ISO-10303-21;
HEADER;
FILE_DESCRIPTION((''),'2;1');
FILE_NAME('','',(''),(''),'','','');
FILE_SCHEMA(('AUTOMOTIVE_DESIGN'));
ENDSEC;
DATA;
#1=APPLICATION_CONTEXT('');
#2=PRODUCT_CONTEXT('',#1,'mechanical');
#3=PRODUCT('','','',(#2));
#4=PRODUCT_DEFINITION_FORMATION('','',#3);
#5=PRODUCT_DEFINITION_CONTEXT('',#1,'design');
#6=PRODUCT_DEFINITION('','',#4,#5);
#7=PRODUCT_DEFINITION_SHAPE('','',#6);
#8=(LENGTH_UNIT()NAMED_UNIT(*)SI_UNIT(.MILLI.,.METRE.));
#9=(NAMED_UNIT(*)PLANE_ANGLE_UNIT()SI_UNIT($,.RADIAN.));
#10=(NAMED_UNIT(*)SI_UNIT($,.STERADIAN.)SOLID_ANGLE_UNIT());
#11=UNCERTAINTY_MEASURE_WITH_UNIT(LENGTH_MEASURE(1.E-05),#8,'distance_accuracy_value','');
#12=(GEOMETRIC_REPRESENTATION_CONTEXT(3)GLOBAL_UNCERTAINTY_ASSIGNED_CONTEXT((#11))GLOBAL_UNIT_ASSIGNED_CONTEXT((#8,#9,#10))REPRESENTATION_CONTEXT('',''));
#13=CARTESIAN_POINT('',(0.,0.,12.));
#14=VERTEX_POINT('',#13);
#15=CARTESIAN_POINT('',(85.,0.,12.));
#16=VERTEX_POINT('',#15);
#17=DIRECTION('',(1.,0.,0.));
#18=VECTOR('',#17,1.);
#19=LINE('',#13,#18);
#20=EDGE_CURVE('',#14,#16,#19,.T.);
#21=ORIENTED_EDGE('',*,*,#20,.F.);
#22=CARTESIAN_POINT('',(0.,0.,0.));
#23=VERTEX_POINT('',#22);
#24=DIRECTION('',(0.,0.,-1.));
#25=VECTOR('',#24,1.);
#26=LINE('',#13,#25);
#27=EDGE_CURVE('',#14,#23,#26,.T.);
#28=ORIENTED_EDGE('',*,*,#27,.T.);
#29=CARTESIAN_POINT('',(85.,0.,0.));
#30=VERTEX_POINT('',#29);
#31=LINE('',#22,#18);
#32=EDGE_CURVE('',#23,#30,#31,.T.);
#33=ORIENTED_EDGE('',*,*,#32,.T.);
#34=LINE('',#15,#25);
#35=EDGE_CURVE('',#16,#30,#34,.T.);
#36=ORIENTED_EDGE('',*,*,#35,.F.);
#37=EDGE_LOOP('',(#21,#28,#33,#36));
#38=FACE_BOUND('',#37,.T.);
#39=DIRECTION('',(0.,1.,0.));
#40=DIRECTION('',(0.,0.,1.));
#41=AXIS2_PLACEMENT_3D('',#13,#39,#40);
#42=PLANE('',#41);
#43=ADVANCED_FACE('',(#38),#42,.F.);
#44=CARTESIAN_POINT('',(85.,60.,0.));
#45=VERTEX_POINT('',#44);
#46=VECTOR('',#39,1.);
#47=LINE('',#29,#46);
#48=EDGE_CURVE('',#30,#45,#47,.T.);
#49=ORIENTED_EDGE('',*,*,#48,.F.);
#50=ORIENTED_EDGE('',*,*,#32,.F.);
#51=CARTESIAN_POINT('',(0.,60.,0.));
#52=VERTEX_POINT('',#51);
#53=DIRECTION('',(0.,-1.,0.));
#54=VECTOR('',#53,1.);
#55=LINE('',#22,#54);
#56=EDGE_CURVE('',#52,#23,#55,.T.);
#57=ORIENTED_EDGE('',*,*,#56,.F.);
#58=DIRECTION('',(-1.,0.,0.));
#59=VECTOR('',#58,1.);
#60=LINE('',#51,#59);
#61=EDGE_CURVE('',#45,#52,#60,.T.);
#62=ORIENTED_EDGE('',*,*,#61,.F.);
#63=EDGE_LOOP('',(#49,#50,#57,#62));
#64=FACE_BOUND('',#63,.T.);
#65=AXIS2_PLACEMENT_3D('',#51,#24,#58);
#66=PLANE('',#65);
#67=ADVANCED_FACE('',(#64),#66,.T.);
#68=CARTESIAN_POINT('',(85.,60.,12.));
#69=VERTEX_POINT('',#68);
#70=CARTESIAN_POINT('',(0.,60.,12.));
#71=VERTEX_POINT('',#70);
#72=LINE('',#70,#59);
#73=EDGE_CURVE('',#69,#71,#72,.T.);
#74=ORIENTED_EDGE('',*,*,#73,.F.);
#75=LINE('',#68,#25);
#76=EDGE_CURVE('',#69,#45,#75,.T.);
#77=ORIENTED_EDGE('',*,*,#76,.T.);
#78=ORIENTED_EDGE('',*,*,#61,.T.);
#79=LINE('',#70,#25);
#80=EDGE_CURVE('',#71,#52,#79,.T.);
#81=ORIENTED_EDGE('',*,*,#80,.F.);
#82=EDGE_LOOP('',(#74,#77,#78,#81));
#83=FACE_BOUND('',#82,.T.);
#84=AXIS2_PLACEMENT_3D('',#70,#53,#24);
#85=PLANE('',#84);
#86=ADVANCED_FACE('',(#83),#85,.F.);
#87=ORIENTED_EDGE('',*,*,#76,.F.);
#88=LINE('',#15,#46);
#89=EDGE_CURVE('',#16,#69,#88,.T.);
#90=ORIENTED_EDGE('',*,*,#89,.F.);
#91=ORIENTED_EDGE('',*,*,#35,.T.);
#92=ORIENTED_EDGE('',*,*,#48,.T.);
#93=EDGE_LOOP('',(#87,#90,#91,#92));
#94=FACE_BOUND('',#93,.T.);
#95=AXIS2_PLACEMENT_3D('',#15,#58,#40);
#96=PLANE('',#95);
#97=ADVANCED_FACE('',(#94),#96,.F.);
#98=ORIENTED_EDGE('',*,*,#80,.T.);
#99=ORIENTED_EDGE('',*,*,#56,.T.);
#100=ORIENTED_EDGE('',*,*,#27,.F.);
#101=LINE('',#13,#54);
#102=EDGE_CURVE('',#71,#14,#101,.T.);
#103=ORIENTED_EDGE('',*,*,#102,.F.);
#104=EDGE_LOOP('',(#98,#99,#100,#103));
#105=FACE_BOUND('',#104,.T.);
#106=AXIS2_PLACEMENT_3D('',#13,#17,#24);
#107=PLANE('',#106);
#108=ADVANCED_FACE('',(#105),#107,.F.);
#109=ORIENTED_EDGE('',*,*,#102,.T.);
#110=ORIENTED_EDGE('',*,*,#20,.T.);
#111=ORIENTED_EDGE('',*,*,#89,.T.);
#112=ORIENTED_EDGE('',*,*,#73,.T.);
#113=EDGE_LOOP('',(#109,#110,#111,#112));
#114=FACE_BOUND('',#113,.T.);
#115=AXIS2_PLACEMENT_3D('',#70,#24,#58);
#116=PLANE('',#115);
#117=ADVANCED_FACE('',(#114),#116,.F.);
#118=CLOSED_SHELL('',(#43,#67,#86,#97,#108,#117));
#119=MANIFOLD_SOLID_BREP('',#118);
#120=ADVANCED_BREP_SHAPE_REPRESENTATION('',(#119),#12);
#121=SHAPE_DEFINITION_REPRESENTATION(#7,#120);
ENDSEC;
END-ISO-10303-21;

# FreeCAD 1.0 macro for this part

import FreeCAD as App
import Part
import Sketcher
from FreeCAD import Vector

doc = App.newDocument("Part")
body = doc.addObject("PartDesign::Body", "Body")

# Sketch on XY plane
sketch1 = doc.addObject("Sketcher::SketchObject", "Sketch")
body.addObject(sketch1)
sketch1.AttachmentSupport = (doc.XY_Plane, [""])
sketch1.MapMode = "FlatFace"
sketch1.addGeometry([
    Part.LineSegment(Vector(0, 60, 0), Vector(0, 0, 0)),
    Part.LineSegment(Vector(0, 0, 0), Vector(85, 0, 0)),
    Part.LineSegment(Vector(85, 0, 0), Vector(85, 60, 0)),
    Part.LineSegment(Vector(85, 60, 0), Vector(0, 60, 0)),
], False)
sketch1.addConstraint([
    Sketcher.Constraint("Coincident", 0, 2, 1, 1),
    Sketcher.Constraint("Coincident", 1, 2, 2, 1),
    Sketcher.Constraint("Coincident", 2, 2, 3, 1),
    Sketcher.Constraint("Coincident", 3, 2, 0, 1),
    Sketcher.Constraint("Vertical", 0),
    Sketcher.Constraint("Horizontal", 1),
    Sketcher.Constraint("Vertical", 2),
    Sketcher.Constraint("Horizontal", 3),
    Sketcher.Constraint("Coincident", 0, 2, -1, 1),
    Sketcher.Constraint("DistanceX", 1, 1, 1, 2, 85.0),
    Sketcher.Constraint("DistanceY", 0, 2, 0, 1, 60.0),
])
pad1 = doc.addObject("PartDesign::Pad", "Pad")
body.addObject(pad1)
pad1.Profile = sketch1
pad1.Length = 12

doc.recompute()
